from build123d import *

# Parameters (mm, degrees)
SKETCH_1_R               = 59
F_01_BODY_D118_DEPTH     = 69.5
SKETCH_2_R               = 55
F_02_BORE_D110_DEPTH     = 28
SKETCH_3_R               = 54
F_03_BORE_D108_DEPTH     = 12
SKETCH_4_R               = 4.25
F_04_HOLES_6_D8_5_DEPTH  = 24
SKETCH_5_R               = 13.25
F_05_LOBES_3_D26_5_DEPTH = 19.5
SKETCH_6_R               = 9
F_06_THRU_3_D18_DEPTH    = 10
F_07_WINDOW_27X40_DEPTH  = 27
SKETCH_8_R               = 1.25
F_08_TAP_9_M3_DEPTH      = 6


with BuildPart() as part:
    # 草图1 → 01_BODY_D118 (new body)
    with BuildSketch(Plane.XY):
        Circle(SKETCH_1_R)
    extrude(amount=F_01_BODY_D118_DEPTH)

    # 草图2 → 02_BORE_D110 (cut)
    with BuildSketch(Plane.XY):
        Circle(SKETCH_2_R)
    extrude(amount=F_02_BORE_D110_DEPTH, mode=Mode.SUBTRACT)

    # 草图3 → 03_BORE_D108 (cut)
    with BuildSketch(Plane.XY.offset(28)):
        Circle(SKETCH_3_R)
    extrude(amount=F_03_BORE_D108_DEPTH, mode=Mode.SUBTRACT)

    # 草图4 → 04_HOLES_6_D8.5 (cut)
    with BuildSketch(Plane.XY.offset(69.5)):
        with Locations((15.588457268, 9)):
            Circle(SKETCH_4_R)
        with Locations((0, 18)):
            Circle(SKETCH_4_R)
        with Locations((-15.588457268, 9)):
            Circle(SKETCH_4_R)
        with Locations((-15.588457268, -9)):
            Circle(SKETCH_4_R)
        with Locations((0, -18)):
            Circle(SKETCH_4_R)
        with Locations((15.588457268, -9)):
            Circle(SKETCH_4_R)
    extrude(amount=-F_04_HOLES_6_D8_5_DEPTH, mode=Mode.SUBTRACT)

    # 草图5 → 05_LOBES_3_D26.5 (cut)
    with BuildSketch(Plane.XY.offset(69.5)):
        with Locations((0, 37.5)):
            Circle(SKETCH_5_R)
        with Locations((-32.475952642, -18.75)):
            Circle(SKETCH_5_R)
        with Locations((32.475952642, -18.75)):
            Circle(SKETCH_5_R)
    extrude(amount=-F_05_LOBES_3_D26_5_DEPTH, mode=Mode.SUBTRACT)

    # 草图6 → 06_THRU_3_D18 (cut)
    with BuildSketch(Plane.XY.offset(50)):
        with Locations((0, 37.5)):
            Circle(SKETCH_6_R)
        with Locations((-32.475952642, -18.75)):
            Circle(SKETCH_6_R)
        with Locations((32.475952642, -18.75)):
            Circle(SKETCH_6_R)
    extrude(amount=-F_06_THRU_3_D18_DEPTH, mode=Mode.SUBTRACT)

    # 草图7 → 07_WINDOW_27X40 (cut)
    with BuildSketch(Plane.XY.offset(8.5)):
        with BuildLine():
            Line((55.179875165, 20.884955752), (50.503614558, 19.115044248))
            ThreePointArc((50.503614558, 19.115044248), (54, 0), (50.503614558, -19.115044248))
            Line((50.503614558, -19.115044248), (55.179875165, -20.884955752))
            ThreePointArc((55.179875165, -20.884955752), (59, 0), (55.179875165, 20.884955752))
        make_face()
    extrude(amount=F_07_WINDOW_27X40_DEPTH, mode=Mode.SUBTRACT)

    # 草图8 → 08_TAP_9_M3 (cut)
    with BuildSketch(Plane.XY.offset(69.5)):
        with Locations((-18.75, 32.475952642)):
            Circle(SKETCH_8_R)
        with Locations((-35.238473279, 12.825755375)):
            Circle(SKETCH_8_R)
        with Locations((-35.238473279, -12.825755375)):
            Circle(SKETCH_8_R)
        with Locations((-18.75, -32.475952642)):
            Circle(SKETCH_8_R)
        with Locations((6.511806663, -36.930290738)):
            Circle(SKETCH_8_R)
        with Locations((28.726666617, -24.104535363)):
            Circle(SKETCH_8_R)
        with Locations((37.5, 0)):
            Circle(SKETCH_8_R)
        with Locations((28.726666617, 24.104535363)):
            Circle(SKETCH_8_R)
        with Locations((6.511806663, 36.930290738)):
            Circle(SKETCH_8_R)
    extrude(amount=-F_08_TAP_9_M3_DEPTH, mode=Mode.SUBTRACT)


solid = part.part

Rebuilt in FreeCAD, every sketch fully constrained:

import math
import FreeCAD as App
import Part
import Sketcher
from FreeCAD import Vector

doc = App.newDocument("Part")
body = doc.addObject("PartDesign::Body", "Body")

# Sketch on XY plane
sketch1 = body.newObject("Sketcher::SketchObject", "Sketch")
sketch1.AttachmentSupport = (doc.getObject("XY_Plane"), [""])
sketch1.MapMode = "FlatFace"
sketch1.addGeometry(Part.Circle(Vector(0, 0, 0), Vector(0, 0, 1), 59), False)
sketch1.addConstraint([
    Sketcher.Constraint("Coincident", 0, 3, -1, 1),
    Sketcher.Constraint("Diameter", 0, 118.0),
])
pad1 = body.newObject("PartDesign::Pad", "Pad")
pad1.Profile = sketch1
pad1.Length = 69.5

# Sketch on XY plane
sketch2 = body.newObject("Sketcher::SketchObject", "Sketch001")
sketch2.AttachmentSupport = (doc.getObject("XY_Plane"), [""])
sketch2.MapMode = "FlatFace"
sketch2.addGeometry(Part.Circle(Vector(0, 0, 0), Vector(0, 0, 1), 55), False)
sketch2.addConstraint([
    Sketcher.Constraint("Coincident", 0, 3, -1, 1),
    Sketcher.Constraint("Diameter", 0, 110.0),
])
pocket1 = body.newObject("PartDesign::Pocket", "Pocket")
pocket1.Profile = sketch2
pocket1.Length = 28
pocket1.Reversed = True

# Sketch on XY plane
sketch3 = body.newObject("Sketcher::SketchObject", "Sketch002")
sketch3.AttachmentSupport = (doc.getObject("XY_Plane"), [""])
sketch3.MapMode = "FlatFace"
sketch3.AttachmentOffset = App.Placement(Vector(0, 0, 28), App.Rotation())
sketch3.addGeometry(Part.Circle(Vector(0, 0, 0), Vector(0, 0, 1), 54), False)
sketch3.addConstraint([
    Sketcher.Constraint("Coincident", 0, 3, -1, 1),
    Sketcher.Constraint("Diameter", 0, 108.0),
])
pocket2 = body.newObject("PartDesign::Pocket", "Pocket001")
pocket2.Profile = sketch3
pocket2.Length = 12
pocket2.Reversed = True

# Sketch on XY plane
sketch4 = body.newObject("Sketcher::SketchObject", "Sketch003")
sketch4.AttachmentSupport = (doc.getObject("XY_Plane"), [""])
sketch4.MapMode = "FlatFace"
sketch4.AttachmentOffset = App.Placement(Vector(0, 0, 69.5), App.Rotation())
sketch4.addGeometry([
    Part.Circle(Vector(15.6, 9, 0), Vector(0, 0, 1), 4.2),  # 0
    Part.Circle(Vector(0, 18, 0), Vector(0, 0, 1), 4.2),  # 1
    Part.Circle(Vector(-15.6, 9, 0), Vector(0, 0, 1), 4.2),  # 2
    Part.Circle(Vector(-15.6, -9, 0), Vector(0, 0, 1), 4.2),  # 3
    Part.Circle(Vector(0, -18, 0), Vector(0, 0, 1), 4.2),  # 4
    Part.Circle(Vector(15.6, -9, 0), Vector(0, 0, 1), 4.2),  # 5
], False)
sketch4.addConstraint([
    Sketcher.Constraint("Equal", 0, 1),
    Sketcher.Constraint("Equal", 1, 2),
    Sketcher.Constraint("Equal", 2, 3),
    Sketcher.Constraint("Equal", 3, 4),
    Sketcher.Constraint("Equal", 4, 5),
    Sketcher.Constraint("Symmetric", 0, 3, 3, 3, -1, 1),
    Sketcher.Constraint("Symmetric", 1, 3, 4, 3, -1, 1),
    Sketcher.Constraint("Symmetric", 2, 3, 5, 3, -1, 1),
    Sketcher.Constraint("Symmetric", 0, 3, 2, 3, -2),
    Sketcher.Constraint("PointOnObject", 1, 3, -2),
    Sketcher.Constraint("Diameter", 0, 8.5),
    Sketcher.Constraint("DistanceY", -1, 1, 0, 3, 9.0),
    Sketcher.Constraint("DistanceY", -1, 1, 1, 3, 18.0),
    Sketcher.Constraint("DistanceX", -1, 1, 0, 3, 15.588457),
])
pocket3 = body.newObject("PartDesign::Pocket", "Pocket002")
pocket3.Profile = sketch4
pocket3.Length = 24

# Sketch on XY plane
sketch5 = body.newObject("Sketcher::SketchObject", "Sketch004")
sketch5.AttachmentSupport = (doc.getObject("XY_Plane"), [""])
sketch5.MapMode = "FlatFace"
sketch5.AttachmentOffset = App.Placement(Vector(0, 0, 69.5), App.Rotation())
sketch5.addGeometry([
    Part.Circle(Vector(0, 38, 0), Vector(0, 0, 1), 13),
    Part.Circle(Vector(-32, -19, 0), Vector(0, 0, 1), 13),
    Part.Circle(Vector(32, -19, 0), Vector(0, 0, 1), 13),
], False)
sketch5.addConstraint([
    Sketcher.Constraint("Equal", 0, 1),
    Sketcher.Constraint("Equal", 1, 2),
    Sketcher.Constraint("Symmetric", 1, 3, 2, 3, -2),
    Sketcher.Constraint("PointOnObject", 0, 3, -2),
    Sketcher.Constraint("Diameter", 0, 26.5),
    Sketcher.Constraint("DistanceY", -1, 1, 0, 3, 37.5),
    Sketcher.Constraint("DistanceY", 1, 3, -1, 1, 18.75),
    Sketcher.Constraint("DistanceX", 1, 3, -1, 1, 32.475953),
])
pocket4 = body.newObject("PartDesign::Pocket", "Pocket003")
pocket4.Profile = sketch5
pocket4.Length = 19.5

# Sketch on XY plane
sketch6 = body.newObject("Sketcher::SketchObject", "Sketch005")
sketch6.AttachmentSupport = (doc.getObject("XY_Plane"), [""])
sketch6.MapMode = "FlatFace"
sketch6.AttachmentOffset = App.Placement(Vector(0, 0, 50), App.Rotation())
sketch6.addGeometry([
    Part.Circle(Vector(0, 38, 0), Vector(0, 0, 1), 9),
    Part.Circle(Vector(-32, -19, 0), Vector(0, 0, 1), 9),
    Part.Circle(Vector(32, -19, 0), Vector(0, 0, 1), 9),
], False)
sketch6.addConstraint([
    Sketcher.Constraint("Equal", 0, 1),
    Sketcher.Constraint("Equal", 1, 2),
    Sketcher.Constraint("Symmetric", 1, 3, 2, 3, -2),
    Sketcher.Constraint("PointOnObject", 0, 3, -2),
    Sketcher.Constraint("Diameter", 0, 18.0),
    Sketcher.Constraint("DistanceY", -1, 1, 0, 3, 37.5),
    Sketcher.Constraint("DistanceY", 1, 3, -1, 1, 18.75),
    Sketcher.Constraint("DistanceX", 1, 3, -1, 1, 32.475953),
])
pocket5 = body.newObject("PartDesign::Pocket", "Pocket004")
pocket5.Profile = sketch6
pocket5.Length = 10

# Sketch on XY plane
sketch7 = body.newObject("Sketcher::SketchObject", "Sketch006")
sketch7.AttachmentSupport = (doc.getObject("XY_Plane"), [""])
sketch7.MapMode = "FlatFace"
sketch7.AttachmentOffset = App.Placement(Vector(0, 0, 8.5), App.Rotation())
sketch7.addGeometry([
    Part.LineSegment(Vector(55.2, 20.9, 0), Vector(50.5, 19.1, 0)),
    Part.ArcOfCircle(Part.Circle(Vector(0, 0, 0), Vector(0, 0, 1), 54), math.radians(-21), math.radians(21)),
    Part.LineSegment(Vector(50.5, -19.1, 0), Vector(55.2, -20.9, 0)),
    Part.ArcOfCircle(Part.Circle(Vector(0, 0, 0), Vector(0, 0, 1), 59), math.radians(-21), math.radians(21)),
], False)
sketch7.addConstraint([
    Sketcher.Constraint("Coincident", 0, 2, 1, 2),
    Sketcher.Constraint("Coincident", 1, 1, 2, 1),
    Sketcher.Constraint("Coincident", 2, 2, 3, 1),
    Sketcher.Constraint("Coincident", 3, 2, 0, 1),
    Sketcher.Constraint("Coincident", 1, 3, -1, 1),
    Sketcher.Constraint("Coincident", 3, 3, -1, 1),
    Sketcher.Constraint("Vertical", 0, 2, 1, 1),
    Sketcher.Constraint("Vertical", 2, 2, 3, 2),
    Sketcher.Constraint("Radius", 1, 54.0),
    Sketcher.Constraint("Radius", 3, 59.0),
    Sketcher.Constraint("DistanceY", 2, 2, 0, 2, 40.0),
    Sketcher.Constraint("DistanceY", 1, 1, 0, 2, 38.230088),
])
pocket6 = body.newObject("PartDesign::Pocket", "Pocket005")
pocket6.Profile = sketch7
pocket6.Length = 27
pocket6.Reversed = True

# Sketch on XY plane
sketch8 = body.newObject("Sketcher::SketchObject", "Sketch007")
sketch8.AttachmentSupport = (doc.getObject("XY_Plane"), [""])
sketch8.MapMode = "FlatFace"
sketch8.AttachmentOffset = App.Placement(Vector(0, 0, 69.5), App.Rotation())
sketch8.addGeometry([
    Part.Circle(Vector(-18.8, 32.5, 0), Vector(0, 0, 1), 1.2),  # 0
    Part.Circle(Vector(-35.2, 12.8, 0), Vector(0, 0, 1), 1.2),  # 1
    Part.Circle(Vector(-35.2, -12.8, 0), Vector(0, 0, 1), 1.2),  # 2
    Part.Circle(Vector(-18.8, -32.5, 0), Vector(0, 0, 1), 1.2),  # 3
    Part.Circle(Vector(6.5, -36.9, 0), Vector(0, 0, 1), 1.2),  # 4
    Part.Circle(Vector(28.7, -24.1, 0), Vector(0, 0, 1), 1.2),  # 5
    Part.Circle(Vector(37.5, 0, 0), Vector(0, 0, 1), 1.2),  # 6
    Part.Circle(Vector(28.7, 24.1, 0), Vector(0, 0, 1), 1.2),  # 7
    Part.Circle(Vector(6.5, 36.9, 0), Vector(0, 0, 1), 1.2),  # 8
], False)
sketch8.addConstraint([
    Sketcher.Constraint("Equal", 0, 1),
    Sketcher.Constraint("Equal", 1, 2),
    Sketcher.Constraint("Equal", 2, 3),
    Sketcher.Constraint("Equal", 3, 4),
    Sketcher.Constraint("Equal", 4, 5),
    Sketcher.Constraint("Equal", 5, 6),
    Sketcher.Constraint("Equal", 6, 7),
    Sketcher.Constraint("Equal", 7, 8),
    Sketcher.Constraint("Symmetric", 1, 3, 2, 3, -1),
    Sketcher.Constraint("Symmetric", 0, 3, 3, 3, -1),
    Sketcher.Constraint("Symmetric", 5, 3, 7, 3, -1),
    Sketcher.Constraint("Symmetric", 4, 3, 8, 3, -1),
    Sketcher.Constraint("PointOnObject", 6, 3, -1),
    Sketcher.Constraint("Diameter", 0, 2.5),
    Sketcher.Constraint("DistanceX", -1, 1, 6, 3, 37.5),
    Sketcher.Constraint("DistanceX", 0, 3, -1, 1, 18.75),
    Sketcher.Constraint("DistanceY", 4, 3, -1, 1, 36.930291),
    Sketcher.Constraint("DistanceY", 2, 3, 1, 3, 25.651511),
    Sketcher.Constraint("DistanceY", 2, 3, 0, 3, 45.301708),
    Sketcher.Constraint("DistanceX", 2, 3, 4, 3, 41.75028),
    Sketcher.Constraint("DistanceX", 4, 3, 5, 3, 22.21486),
    Sketcher.Constraint("DistanceY", 5, 3, 2, 3, 11.27878),
    Sketcher.Constraint("DistanceX", 1, 3, -1, 1, 35.238473),
])
pocket7 = body.newObject("PartDesign::Pocket", "Pocket006")
pocket7.Profile = sketch8
pocket7.Length = 6

doc.recompute()
